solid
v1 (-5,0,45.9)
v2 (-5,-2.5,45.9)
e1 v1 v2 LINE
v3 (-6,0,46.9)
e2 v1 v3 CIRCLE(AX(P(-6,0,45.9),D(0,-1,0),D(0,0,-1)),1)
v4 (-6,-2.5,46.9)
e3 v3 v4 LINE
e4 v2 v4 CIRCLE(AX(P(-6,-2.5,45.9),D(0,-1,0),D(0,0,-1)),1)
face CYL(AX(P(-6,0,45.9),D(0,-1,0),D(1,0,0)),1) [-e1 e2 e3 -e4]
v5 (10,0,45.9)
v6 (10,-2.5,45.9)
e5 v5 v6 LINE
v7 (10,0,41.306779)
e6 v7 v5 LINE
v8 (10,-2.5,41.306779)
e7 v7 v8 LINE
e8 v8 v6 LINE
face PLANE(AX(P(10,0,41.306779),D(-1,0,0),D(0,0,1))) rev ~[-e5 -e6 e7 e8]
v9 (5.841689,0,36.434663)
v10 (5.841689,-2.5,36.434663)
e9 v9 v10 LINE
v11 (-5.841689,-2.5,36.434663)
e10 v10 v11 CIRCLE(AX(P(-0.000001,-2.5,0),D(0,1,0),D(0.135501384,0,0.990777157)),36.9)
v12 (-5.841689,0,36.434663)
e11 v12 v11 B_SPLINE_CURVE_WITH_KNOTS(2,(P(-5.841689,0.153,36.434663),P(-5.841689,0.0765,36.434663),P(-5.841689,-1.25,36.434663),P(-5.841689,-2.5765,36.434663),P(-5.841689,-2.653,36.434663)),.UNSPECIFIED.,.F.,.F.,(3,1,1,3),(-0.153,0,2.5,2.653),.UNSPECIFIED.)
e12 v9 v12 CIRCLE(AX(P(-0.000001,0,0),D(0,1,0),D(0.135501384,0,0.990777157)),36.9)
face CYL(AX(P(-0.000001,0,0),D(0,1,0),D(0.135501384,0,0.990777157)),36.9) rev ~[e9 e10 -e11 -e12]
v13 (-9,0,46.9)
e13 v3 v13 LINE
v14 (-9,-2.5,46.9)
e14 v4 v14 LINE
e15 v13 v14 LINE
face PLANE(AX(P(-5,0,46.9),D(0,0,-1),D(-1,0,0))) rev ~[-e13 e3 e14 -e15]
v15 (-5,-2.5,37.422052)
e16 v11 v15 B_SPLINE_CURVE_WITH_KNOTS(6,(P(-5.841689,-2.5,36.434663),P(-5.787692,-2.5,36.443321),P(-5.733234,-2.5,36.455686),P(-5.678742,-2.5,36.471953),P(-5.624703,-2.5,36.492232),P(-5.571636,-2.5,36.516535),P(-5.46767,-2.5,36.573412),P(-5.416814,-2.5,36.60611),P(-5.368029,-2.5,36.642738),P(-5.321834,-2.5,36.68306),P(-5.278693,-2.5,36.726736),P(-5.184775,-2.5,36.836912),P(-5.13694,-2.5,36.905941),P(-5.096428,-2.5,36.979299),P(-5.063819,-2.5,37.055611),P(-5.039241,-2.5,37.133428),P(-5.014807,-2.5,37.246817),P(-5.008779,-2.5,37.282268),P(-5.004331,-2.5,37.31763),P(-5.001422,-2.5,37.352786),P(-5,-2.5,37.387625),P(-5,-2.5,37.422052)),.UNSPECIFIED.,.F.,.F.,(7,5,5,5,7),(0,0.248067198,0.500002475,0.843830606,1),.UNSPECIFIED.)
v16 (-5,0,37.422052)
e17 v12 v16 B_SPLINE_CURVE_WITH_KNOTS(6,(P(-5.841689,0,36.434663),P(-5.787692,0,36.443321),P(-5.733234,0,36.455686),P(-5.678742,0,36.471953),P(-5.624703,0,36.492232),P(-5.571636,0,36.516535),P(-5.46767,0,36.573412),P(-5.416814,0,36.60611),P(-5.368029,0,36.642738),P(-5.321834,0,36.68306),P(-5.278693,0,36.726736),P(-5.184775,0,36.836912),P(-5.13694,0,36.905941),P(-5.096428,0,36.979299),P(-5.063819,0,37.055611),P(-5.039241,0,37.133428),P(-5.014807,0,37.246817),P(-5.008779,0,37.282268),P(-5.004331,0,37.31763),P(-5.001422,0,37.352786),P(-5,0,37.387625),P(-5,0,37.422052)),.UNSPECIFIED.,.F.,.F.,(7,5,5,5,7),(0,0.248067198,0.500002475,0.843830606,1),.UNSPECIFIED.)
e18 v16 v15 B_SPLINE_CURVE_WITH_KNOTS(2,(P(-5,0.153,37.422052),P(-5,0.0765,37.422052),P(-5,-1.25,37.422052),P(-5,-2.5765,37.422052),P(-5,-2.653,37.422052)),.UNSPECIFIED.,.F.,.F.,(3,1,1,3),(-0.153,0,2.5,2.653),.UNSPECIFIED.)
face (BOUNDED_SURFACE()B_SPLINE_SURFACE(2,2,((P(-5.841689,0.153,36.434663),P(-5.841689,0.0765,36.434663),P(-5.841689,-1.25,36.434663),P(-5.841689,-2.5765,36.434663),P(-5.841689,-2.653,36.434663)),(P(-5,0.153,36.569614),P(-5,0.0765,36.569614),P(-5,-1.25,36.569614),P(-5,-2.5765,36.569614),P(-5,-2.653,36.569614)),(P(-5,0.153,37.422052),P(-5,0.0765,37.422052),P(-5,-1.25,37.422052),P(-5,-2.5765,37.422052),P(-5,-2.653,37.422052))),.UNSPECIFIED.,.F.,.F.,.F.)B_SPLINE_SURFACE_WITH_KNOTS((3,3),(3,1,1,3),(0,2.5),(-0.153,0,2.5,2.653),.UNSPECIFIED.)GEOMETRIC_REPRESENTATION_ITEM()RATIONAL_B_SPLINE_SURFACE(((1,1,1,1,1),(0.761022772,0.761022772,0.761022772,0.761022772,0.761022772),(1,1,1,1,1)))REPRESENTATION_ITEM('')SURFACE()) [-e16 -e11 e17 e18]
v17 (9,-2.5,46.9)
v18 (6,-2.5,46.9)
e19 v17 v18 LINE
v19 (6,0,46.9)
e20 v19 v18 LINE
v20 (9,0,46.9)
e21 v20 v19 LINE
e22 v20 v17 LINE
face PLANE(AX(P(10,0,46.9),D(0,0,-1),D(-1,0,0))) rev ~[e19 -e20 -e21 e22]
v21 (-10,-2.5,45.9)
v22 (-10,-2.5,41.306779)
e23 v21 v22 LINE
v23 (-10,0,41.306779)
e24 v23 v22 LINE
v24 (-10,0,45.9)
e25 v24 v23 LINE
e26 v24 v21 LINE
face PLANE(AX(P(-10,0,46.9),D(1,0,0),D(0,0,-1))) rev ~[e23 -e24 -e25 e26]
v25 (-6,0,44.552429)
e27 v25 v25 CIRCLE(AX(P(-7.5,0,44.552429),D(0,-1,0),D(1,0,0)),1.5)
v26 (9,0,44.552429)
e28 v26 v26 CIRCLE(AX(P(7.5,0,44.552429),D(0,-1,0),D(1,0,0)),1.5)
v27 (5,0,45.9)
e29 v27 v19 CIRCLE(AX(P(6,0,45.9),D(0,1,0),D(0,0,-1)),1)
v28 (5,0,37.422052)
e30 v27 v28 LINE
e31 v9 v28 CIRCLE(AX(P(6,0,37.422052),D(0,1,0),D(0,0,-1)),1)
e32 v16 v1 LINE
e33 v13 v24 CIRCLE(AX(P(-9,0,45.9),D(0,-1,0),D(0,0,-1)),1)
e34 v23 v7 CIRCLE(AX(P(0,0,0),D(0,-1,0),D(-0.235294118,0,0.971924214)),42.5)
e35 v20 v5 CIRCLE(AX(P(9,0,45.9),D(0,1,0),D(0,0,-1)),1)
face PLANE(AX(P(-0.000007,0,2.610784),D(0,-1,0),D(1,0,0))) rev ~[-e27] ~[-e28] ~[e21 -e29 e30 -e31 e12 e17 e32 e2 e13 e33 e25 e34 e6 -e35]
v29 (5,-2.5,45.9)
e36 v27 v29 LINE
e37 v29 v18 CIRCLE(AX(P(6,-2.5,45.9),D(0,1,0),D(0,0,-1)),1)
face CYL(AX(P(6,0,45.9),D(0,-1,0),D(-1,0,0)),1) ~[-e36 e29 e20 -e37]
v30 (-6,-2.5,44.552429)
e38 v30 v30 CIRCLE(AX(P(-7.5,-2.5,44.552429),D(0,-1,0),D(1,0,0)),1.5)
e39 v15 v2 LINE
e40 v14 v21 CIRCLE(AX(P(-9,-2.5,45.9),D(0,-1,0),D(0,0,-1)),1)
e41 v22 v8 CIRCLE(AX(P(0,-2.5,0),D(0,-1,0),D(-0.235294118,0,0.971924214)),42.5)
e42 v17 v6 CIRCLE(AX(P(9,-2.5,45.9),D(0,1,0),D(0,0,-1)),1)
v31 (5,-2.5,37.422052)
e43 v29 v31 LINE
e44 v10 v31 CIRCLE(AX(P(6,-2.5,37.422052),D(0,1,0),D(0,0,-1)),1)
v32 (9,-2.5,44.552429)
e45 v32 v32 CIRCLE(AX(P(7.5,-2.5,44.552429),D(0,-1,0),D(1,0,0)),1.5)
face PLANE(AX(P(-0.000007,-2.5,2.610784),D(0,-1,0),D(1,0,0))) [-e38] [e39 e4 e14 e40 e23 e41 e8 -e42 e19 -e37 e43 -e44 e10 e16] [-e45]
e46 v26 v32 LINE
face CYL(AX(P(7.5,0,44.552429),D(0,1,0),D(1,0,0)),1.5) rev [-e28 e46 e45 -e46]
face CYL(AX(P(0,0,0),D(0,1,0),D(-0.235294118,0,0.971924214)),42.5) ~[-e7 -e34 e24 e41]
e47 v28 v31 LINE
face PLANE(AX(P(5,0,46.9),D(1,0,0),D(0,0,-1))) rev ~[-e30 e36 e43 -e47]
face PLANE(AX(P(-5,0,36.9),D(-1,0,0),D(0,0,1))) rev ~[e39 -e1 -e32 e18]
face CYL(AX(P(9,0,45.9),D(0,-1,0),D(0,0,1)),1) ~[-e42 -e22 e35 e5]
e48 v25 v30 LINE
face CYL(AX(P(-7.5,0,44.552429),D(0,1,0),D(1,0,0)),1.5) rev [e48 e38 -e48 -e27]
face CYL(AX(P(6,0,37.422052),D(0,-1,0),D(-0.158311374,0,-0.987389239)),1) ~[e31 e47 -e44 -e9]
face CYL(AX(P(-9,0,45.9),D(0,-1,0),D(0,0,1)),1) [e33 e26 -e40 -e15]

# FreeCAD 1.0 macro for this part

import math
import FreeCAD as App
import Part
import Sketcher


def edges_at(feature, points):
    """Names of the edges that pass closest to the given points."""
    edges = feature.Shape.Edges
    near = lambda p: min(range(len(edges)), key=lambda i: edges[i].distToShape(Part.Vertex(*p))[0])
    return sorted({f"Edge{near(p) + 1}" for p in points})

doc = App.newDocument("Part")
body = doc.addObject("PartDesign::Body", "Body")

# Sketch on XZ plane
sketch1 = body.newObject("Sketcher::SketchObject", "Sketch")
sketch1.AttachmentSupport = (doc.getObject("XZ_Plane"), [""])
sketch1.MapMode = "FlatFace"
sketch1.addGeometry([
    Part.ArcOfCircle(Part.Circle(App.Vector(-0.000001, 0, 0), App.Vector(0, 0, 1), 36.9), math.radians(97.785046), math.radians(442.212386)),  # 0
    Part.LineSegment(App.Vector(-4.998364, 36.559901, 0), App.Vector(-5, 36.9, 0)),  # 1
    Part.LineSegment(App.Vector(-5, 36.9, 0), App.Vector(-5, 46.9, 0)),  # 2
    Part.LineSegment(App.Vector(-5, 46.9, 0), App.Vector(-10, 46.9, 0)),  # 3
    Part.LineSegment(App.Vector(-10, 46.9, 0), App.Vector(-10, 41.306779, 0)),  # 4
    Part.ArcOfCircle(Part.Circle(App.Vector(0, 0, 0), App.Vector(0, 0, 1), 42.5), math.radians(103.608961), math.radians(436.391039)),  # 5
    Part.LineSegment(App.Vector(10, 41.306779, 0), App.Vector(10, 46.9, 0)),  # 6
    Part.LineSegment(App.Vector(10, 46.9, 0), App.Vector(5, 46.9, 0)),  # 7
    Part.LineSegment(App.Vector(5, 46.9, 0), App.Vector(5, 36.559677, 0)),  # 8
    Part.Circle(App.Vector(-7.5, 44.552429, 0), App.Vector(0, 0, 1), 1.5),  # 9
    Part.Circle(App.Vector(7.5, 44.552429, 0), App.Vector(0, 0, 1), 1.5),  # 10
], False)
sketch1.addConstraint([
    Sketcher.Constraint("Coincident", 0, 1, 1, 1),
    Sketcher.Constraint("Coincident", 1, 2, 2, 1),
    Sketcher.Constraint("Coincident", 2, 2, 3, 1),
    Sketcher.Constraint("Coincident", 3, 2, 4, 1),
    Sketcher.Constraint("Coincident", 4, 2, 5, 1),
    Sketcher.Constraint("Coincident", 5, 2, 6, 1),
    Sketcher.Constraint("Coincident", 6, 2, 7, 1),
    Sketcher.Constraint("Coincident", 7, 2, 8, 1),
    Sketcher.Constraint("Coincident", 8, 2, 0, 2),
    Sketcher.Constraint("Vertical", 2),
    Sketcher.Constraint("Horizontal", 3),
    Sketcher.Constraint("Vertical", 4),
    Sketcher.Constraint("Vertical", 6),
    Sketcher.Constraint("Horizontal", 7),
    Sketcher.Constraint("Vertical", 8),
    Sketcher.Constraint("Coincident", 0, 3, -1, 1),
    Sketcher.Constraint("Coincident", 5, 3, -1, 1),
    Sketcher.Constraint("Equal", 9, 10),
    Sketcher.Constraint("Symmetric", 9, 3, 10, 3, -2),
    Sketcher.Constraint("Symmetric", 3, 2, 6, 2, -2),
    Sketcher.Constraint("Equal", 3, 7),
    Sketcher.Constraint("Diameter", 9, 3.0),
    Sketcher.Constraint("Radius", 0, 36.9),
    Sketcher.Constraint("Radius", 5, 42.5),
    Sketcher.Constraint("DistanceX", 3, 2, 3, 1, 5.0),
    Sketcher.Constraint("DistanceY", 2, 1, 2, 2, 10.0),
    Sketcher.Constraint("DistanceX", 1, 2, -1, 1, 5.0),
    Sketcher.Constraint("DistanceX", 9, 3, 10, 3, 15.0),
    Sketcher.Constraint("DistanceY", -1, 1, 1, 2, 36.9),
    Sketcher.Constraint("DistanceY", -1, 1, 0, 1, 36.559901),
    Sketcher.Constraint("DistanceY", -1, 1, 9, 3, 44.552429),
])
pad1 = body.newObject("PartDesign::Pad", "Pad")
pad1.Profile = sketch1
pad1.Length = 2.5
doc.recompute()

fillet = body.newObject("PartDesign::Fillet", "Fillet")
fillet.Base = (pad1, edges_at(pad1, [
    (-10, -1.25, 46.9),
    (-5, -1.25, 46.9),
    (5, -1.25, 46.9),
    (10, -1.25, 46.9),
    (5, -1.25, 36.56),
    (-4.998, -1.25, 36.56),
]))
fillet.Radius = 1

doc.recompute()
